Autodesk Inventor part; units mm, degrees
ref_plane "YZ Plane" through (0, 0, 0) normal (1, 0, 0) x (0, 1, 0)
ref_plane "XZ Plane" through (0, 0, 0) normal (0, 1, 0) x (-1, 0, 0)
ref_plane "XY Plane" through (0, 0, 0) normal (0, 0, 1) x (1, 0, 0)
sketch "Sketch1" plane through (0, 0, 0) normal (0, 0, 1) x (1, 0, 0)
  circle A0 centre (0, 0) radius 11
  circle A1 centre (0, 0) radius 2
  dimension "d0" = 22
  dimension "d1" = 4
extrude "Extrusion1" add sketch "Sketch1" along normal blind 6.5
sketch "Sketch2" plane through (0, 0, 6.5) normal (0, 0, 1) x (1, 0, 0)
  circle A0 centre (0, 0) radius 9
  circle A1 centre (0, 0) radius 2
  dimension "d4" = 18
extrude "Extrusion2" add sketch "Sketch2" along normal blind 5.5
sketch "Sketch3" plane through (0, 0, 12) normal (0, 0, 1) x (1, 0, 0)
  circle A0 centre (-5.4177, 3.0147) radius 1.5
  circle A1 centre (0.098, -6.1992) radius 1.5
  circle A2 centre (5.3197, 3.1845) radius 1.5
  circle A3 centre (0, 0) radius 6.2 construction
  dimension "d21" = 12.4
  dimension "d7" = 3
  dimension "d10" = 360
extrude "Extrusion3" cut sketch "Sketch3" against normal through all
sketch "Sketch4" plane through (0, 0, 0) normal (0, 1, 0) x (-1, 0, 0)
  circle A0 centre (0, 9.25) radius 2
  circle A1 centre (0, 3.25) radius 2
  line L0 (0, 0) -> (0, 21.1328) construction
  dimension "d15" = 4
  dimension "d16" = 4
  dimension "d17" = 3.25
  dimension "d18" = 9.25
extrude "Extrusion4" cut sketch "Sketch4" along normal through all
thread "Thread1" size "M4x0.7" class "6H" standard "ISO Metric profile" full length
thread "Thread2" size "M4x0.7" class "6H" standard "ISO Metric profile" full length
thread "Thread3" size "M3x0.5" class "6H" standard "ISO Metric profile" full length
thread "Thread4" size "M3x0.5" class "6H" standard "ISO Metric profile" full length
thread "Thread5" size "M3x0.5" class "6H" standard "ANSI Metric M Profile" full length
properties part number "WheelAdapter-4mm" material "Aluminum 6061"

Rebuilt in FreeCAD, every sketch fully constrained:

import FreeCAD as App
import Part
import Sketcher
Q = App.Units.Quantity

doc = App.newDocument("Part")
body = doc.addObject("PartDesign::Body", "Body")

sketch1 = body.newObject("Sketcher::SketchObject", "Sketch")
sketch1.AttachmentSupport = (doc.getObject("XY_Plane"), [""])
sketch1.MapMode = "FlatFace"
sketch1.addGeometry(Part.Circle(App.Vector(0, 0, 0), App.Vector(0, 0, 1), 11), False)
sketch1.addGeometry(Part.Circle(App.Vector(0, 0, 0), App.Vector(0, 0, 1), 2), False)
sketch1.addConstraint(Sketcher.Constraint("Coincident", 0, 3, -1, 1))
sketch1.addConstraint(Sketcher.Constraint("Coincident", 1, 3, -1, 1))
sketch1.addConstraint(Sketcher.Constraint("Diameter", 0, Q("22 mm")))
sketch1.addConstraint(Sketcher.Constraint("Diameter", 1, Q("4 mm")))
pad1 = body.newObject("PartDesign::Pad", "Pad")
pad1.Profile = sketch1
pad1.Length = 6.5

sketch2 = body.newObject("Sketcher::SketchObject", "Sketch001")
sketch2.AttachmentSupport = (doc.getObject("XY_Plane"), [""])
sketch2.MapMode = "FlatFace"
sketch2.AttachmentOffset = App.Placement(App.Vector(0, 0, 6.5), App.Rotation())
sketch2.addGeometry(Part.Circle(App.Vector(0, 0, 0), App.Vector(0, 0, 1), 9), False)
sketch2.addGeometry(Part.Circle(App.Vector(0, 0, 0), App.Vector(0, 0, 1), 2), False)
sketch2.addConstraint(Sketcher.Constraint("Coincident", 0, 3, -1, 1))
sketch2.addConstraint(Sketcher.Constraint("Coincident", 1, 3, -1, 1))
sketch2.addConstraint(Sketcher.Constraint("Diameter", 0, Q("18 mm")))
sketch2.addConstraint(Sketcher.Constraint("Diameter", 1, Q("4 mm")))
pad2 = body.newObject("PartDesign::Pad", "Pad001")
pad2.Profile = sketch2
pad2.Length = 5.5

sketch3 = body.newObject("Sketcher::SketchObject", "Sketch002")
sketch3.AttachmentSupport = (doc.getObject("XY_Plane"), [""])
sketch3.MapMode = "FlatFace"
sketch3.AttachmentOffset = App.Placement(App.Vector(0, 0, 12), App.Rotation())
sketch3.addGeometry(Part.Circle(App.Vector(-5.4177, 3.0147, 0), App.Vector(0, 0, 1), 1.5), False)
sketch3.addGeometry(Part.Circle(App.Vector(0.098, -6.1992, 0), App.Vector(0, 0, 1), 1.5), False)
sketch3.addGeometry(Part.Circle(App.Vector(5.3197, 3.1845, 0), App.Vector(0, 0, 1), 1.5), False)
sketch3.addConstraint(Sketcher.Constraint("Equal", 0, 1))
sketch3.addConstraint(Sketcher.Constraint("Equal", 1, 2))
sketch3.addConstraint(Sketcher.Constraint("Diameter", 0, Q("3 mm")))
sketch3.addConstraint(Sketcher.Constraint("DistanceX", -1, 1, 1, 3, Q("0.098 mm")))
sketch3.addConstraint(Sketcher.Constraint("DistanceY", 1, 3, 0, 3, Q("9.214 mm")))
sketch3.addConstraint(Sketcher.Constraint("DistanceX", 0, 3, -1, 1, Q("5.4177 mm")))
sketch3.addConstraint(Sketcher.Constraint("DistanceY", -1, 1, 0, 3, Q("3.0147 mm")))
sketch3.addConstraint(Sketcher.Constraint("DistanceX", -1, 1, 2, 3, Q("5.3197 mm")))
sketch3.addConstraint(Sketcher.Constraint("DistanceY", -1, 1, 2, 3, Q("3.1845 mm")))
pocket1 = body.newObject("PartDesign::Pocket", "Pocket")
pocket1.Profile = sketch3
pocket1.Type = "ThroughAll"

sketch4 = body.newObject("Sketcher::SketchObject", "Sketch003")
sketch4.AttachmentSupport = (doc.getObject("XZ_Plane"), [""])
sketch4.MapMode = "FlatFace"
sketch4.addGeometry(Part.Circle(App.Vector(0, 9.25, 0), App.Vector(0, 0, 1), 2), False)
sketch4.addGeometry(Part.Circle(App.Vector(0, 3.25, 0), App.Vector(0, 0, 1), 2), False)
sketch4.addConstraint(Sketcher.Constraint("Equal", 0, 1))
sketch4.addConstraint(Sketcher.Constraint("PointOnObject", 0, 3, -2))
sketch4.addConstraint(Sketcher.Constraint("PointOnObject", 1, 3, -2))
sketch4.addConstraint(Sketcher.Constraint("Diameter", 0, Q("4 mm")))
sketch4.addConstraint(Sketcher.Constraint("DistanceY", -1, 1, 0, 3, Q("9.25 mm")))
sketch4.addConstraint(Sketcher.Constraint("DistanceY", -1, 1, 1, 3, Q("3.25 mm")))
pocket2 = body.newObject("PartDesign::Pocket", "Pocket001")
pocket2.Profile = sketch4
pocket2.Type = "ThroughAll"

doc.recompute()
